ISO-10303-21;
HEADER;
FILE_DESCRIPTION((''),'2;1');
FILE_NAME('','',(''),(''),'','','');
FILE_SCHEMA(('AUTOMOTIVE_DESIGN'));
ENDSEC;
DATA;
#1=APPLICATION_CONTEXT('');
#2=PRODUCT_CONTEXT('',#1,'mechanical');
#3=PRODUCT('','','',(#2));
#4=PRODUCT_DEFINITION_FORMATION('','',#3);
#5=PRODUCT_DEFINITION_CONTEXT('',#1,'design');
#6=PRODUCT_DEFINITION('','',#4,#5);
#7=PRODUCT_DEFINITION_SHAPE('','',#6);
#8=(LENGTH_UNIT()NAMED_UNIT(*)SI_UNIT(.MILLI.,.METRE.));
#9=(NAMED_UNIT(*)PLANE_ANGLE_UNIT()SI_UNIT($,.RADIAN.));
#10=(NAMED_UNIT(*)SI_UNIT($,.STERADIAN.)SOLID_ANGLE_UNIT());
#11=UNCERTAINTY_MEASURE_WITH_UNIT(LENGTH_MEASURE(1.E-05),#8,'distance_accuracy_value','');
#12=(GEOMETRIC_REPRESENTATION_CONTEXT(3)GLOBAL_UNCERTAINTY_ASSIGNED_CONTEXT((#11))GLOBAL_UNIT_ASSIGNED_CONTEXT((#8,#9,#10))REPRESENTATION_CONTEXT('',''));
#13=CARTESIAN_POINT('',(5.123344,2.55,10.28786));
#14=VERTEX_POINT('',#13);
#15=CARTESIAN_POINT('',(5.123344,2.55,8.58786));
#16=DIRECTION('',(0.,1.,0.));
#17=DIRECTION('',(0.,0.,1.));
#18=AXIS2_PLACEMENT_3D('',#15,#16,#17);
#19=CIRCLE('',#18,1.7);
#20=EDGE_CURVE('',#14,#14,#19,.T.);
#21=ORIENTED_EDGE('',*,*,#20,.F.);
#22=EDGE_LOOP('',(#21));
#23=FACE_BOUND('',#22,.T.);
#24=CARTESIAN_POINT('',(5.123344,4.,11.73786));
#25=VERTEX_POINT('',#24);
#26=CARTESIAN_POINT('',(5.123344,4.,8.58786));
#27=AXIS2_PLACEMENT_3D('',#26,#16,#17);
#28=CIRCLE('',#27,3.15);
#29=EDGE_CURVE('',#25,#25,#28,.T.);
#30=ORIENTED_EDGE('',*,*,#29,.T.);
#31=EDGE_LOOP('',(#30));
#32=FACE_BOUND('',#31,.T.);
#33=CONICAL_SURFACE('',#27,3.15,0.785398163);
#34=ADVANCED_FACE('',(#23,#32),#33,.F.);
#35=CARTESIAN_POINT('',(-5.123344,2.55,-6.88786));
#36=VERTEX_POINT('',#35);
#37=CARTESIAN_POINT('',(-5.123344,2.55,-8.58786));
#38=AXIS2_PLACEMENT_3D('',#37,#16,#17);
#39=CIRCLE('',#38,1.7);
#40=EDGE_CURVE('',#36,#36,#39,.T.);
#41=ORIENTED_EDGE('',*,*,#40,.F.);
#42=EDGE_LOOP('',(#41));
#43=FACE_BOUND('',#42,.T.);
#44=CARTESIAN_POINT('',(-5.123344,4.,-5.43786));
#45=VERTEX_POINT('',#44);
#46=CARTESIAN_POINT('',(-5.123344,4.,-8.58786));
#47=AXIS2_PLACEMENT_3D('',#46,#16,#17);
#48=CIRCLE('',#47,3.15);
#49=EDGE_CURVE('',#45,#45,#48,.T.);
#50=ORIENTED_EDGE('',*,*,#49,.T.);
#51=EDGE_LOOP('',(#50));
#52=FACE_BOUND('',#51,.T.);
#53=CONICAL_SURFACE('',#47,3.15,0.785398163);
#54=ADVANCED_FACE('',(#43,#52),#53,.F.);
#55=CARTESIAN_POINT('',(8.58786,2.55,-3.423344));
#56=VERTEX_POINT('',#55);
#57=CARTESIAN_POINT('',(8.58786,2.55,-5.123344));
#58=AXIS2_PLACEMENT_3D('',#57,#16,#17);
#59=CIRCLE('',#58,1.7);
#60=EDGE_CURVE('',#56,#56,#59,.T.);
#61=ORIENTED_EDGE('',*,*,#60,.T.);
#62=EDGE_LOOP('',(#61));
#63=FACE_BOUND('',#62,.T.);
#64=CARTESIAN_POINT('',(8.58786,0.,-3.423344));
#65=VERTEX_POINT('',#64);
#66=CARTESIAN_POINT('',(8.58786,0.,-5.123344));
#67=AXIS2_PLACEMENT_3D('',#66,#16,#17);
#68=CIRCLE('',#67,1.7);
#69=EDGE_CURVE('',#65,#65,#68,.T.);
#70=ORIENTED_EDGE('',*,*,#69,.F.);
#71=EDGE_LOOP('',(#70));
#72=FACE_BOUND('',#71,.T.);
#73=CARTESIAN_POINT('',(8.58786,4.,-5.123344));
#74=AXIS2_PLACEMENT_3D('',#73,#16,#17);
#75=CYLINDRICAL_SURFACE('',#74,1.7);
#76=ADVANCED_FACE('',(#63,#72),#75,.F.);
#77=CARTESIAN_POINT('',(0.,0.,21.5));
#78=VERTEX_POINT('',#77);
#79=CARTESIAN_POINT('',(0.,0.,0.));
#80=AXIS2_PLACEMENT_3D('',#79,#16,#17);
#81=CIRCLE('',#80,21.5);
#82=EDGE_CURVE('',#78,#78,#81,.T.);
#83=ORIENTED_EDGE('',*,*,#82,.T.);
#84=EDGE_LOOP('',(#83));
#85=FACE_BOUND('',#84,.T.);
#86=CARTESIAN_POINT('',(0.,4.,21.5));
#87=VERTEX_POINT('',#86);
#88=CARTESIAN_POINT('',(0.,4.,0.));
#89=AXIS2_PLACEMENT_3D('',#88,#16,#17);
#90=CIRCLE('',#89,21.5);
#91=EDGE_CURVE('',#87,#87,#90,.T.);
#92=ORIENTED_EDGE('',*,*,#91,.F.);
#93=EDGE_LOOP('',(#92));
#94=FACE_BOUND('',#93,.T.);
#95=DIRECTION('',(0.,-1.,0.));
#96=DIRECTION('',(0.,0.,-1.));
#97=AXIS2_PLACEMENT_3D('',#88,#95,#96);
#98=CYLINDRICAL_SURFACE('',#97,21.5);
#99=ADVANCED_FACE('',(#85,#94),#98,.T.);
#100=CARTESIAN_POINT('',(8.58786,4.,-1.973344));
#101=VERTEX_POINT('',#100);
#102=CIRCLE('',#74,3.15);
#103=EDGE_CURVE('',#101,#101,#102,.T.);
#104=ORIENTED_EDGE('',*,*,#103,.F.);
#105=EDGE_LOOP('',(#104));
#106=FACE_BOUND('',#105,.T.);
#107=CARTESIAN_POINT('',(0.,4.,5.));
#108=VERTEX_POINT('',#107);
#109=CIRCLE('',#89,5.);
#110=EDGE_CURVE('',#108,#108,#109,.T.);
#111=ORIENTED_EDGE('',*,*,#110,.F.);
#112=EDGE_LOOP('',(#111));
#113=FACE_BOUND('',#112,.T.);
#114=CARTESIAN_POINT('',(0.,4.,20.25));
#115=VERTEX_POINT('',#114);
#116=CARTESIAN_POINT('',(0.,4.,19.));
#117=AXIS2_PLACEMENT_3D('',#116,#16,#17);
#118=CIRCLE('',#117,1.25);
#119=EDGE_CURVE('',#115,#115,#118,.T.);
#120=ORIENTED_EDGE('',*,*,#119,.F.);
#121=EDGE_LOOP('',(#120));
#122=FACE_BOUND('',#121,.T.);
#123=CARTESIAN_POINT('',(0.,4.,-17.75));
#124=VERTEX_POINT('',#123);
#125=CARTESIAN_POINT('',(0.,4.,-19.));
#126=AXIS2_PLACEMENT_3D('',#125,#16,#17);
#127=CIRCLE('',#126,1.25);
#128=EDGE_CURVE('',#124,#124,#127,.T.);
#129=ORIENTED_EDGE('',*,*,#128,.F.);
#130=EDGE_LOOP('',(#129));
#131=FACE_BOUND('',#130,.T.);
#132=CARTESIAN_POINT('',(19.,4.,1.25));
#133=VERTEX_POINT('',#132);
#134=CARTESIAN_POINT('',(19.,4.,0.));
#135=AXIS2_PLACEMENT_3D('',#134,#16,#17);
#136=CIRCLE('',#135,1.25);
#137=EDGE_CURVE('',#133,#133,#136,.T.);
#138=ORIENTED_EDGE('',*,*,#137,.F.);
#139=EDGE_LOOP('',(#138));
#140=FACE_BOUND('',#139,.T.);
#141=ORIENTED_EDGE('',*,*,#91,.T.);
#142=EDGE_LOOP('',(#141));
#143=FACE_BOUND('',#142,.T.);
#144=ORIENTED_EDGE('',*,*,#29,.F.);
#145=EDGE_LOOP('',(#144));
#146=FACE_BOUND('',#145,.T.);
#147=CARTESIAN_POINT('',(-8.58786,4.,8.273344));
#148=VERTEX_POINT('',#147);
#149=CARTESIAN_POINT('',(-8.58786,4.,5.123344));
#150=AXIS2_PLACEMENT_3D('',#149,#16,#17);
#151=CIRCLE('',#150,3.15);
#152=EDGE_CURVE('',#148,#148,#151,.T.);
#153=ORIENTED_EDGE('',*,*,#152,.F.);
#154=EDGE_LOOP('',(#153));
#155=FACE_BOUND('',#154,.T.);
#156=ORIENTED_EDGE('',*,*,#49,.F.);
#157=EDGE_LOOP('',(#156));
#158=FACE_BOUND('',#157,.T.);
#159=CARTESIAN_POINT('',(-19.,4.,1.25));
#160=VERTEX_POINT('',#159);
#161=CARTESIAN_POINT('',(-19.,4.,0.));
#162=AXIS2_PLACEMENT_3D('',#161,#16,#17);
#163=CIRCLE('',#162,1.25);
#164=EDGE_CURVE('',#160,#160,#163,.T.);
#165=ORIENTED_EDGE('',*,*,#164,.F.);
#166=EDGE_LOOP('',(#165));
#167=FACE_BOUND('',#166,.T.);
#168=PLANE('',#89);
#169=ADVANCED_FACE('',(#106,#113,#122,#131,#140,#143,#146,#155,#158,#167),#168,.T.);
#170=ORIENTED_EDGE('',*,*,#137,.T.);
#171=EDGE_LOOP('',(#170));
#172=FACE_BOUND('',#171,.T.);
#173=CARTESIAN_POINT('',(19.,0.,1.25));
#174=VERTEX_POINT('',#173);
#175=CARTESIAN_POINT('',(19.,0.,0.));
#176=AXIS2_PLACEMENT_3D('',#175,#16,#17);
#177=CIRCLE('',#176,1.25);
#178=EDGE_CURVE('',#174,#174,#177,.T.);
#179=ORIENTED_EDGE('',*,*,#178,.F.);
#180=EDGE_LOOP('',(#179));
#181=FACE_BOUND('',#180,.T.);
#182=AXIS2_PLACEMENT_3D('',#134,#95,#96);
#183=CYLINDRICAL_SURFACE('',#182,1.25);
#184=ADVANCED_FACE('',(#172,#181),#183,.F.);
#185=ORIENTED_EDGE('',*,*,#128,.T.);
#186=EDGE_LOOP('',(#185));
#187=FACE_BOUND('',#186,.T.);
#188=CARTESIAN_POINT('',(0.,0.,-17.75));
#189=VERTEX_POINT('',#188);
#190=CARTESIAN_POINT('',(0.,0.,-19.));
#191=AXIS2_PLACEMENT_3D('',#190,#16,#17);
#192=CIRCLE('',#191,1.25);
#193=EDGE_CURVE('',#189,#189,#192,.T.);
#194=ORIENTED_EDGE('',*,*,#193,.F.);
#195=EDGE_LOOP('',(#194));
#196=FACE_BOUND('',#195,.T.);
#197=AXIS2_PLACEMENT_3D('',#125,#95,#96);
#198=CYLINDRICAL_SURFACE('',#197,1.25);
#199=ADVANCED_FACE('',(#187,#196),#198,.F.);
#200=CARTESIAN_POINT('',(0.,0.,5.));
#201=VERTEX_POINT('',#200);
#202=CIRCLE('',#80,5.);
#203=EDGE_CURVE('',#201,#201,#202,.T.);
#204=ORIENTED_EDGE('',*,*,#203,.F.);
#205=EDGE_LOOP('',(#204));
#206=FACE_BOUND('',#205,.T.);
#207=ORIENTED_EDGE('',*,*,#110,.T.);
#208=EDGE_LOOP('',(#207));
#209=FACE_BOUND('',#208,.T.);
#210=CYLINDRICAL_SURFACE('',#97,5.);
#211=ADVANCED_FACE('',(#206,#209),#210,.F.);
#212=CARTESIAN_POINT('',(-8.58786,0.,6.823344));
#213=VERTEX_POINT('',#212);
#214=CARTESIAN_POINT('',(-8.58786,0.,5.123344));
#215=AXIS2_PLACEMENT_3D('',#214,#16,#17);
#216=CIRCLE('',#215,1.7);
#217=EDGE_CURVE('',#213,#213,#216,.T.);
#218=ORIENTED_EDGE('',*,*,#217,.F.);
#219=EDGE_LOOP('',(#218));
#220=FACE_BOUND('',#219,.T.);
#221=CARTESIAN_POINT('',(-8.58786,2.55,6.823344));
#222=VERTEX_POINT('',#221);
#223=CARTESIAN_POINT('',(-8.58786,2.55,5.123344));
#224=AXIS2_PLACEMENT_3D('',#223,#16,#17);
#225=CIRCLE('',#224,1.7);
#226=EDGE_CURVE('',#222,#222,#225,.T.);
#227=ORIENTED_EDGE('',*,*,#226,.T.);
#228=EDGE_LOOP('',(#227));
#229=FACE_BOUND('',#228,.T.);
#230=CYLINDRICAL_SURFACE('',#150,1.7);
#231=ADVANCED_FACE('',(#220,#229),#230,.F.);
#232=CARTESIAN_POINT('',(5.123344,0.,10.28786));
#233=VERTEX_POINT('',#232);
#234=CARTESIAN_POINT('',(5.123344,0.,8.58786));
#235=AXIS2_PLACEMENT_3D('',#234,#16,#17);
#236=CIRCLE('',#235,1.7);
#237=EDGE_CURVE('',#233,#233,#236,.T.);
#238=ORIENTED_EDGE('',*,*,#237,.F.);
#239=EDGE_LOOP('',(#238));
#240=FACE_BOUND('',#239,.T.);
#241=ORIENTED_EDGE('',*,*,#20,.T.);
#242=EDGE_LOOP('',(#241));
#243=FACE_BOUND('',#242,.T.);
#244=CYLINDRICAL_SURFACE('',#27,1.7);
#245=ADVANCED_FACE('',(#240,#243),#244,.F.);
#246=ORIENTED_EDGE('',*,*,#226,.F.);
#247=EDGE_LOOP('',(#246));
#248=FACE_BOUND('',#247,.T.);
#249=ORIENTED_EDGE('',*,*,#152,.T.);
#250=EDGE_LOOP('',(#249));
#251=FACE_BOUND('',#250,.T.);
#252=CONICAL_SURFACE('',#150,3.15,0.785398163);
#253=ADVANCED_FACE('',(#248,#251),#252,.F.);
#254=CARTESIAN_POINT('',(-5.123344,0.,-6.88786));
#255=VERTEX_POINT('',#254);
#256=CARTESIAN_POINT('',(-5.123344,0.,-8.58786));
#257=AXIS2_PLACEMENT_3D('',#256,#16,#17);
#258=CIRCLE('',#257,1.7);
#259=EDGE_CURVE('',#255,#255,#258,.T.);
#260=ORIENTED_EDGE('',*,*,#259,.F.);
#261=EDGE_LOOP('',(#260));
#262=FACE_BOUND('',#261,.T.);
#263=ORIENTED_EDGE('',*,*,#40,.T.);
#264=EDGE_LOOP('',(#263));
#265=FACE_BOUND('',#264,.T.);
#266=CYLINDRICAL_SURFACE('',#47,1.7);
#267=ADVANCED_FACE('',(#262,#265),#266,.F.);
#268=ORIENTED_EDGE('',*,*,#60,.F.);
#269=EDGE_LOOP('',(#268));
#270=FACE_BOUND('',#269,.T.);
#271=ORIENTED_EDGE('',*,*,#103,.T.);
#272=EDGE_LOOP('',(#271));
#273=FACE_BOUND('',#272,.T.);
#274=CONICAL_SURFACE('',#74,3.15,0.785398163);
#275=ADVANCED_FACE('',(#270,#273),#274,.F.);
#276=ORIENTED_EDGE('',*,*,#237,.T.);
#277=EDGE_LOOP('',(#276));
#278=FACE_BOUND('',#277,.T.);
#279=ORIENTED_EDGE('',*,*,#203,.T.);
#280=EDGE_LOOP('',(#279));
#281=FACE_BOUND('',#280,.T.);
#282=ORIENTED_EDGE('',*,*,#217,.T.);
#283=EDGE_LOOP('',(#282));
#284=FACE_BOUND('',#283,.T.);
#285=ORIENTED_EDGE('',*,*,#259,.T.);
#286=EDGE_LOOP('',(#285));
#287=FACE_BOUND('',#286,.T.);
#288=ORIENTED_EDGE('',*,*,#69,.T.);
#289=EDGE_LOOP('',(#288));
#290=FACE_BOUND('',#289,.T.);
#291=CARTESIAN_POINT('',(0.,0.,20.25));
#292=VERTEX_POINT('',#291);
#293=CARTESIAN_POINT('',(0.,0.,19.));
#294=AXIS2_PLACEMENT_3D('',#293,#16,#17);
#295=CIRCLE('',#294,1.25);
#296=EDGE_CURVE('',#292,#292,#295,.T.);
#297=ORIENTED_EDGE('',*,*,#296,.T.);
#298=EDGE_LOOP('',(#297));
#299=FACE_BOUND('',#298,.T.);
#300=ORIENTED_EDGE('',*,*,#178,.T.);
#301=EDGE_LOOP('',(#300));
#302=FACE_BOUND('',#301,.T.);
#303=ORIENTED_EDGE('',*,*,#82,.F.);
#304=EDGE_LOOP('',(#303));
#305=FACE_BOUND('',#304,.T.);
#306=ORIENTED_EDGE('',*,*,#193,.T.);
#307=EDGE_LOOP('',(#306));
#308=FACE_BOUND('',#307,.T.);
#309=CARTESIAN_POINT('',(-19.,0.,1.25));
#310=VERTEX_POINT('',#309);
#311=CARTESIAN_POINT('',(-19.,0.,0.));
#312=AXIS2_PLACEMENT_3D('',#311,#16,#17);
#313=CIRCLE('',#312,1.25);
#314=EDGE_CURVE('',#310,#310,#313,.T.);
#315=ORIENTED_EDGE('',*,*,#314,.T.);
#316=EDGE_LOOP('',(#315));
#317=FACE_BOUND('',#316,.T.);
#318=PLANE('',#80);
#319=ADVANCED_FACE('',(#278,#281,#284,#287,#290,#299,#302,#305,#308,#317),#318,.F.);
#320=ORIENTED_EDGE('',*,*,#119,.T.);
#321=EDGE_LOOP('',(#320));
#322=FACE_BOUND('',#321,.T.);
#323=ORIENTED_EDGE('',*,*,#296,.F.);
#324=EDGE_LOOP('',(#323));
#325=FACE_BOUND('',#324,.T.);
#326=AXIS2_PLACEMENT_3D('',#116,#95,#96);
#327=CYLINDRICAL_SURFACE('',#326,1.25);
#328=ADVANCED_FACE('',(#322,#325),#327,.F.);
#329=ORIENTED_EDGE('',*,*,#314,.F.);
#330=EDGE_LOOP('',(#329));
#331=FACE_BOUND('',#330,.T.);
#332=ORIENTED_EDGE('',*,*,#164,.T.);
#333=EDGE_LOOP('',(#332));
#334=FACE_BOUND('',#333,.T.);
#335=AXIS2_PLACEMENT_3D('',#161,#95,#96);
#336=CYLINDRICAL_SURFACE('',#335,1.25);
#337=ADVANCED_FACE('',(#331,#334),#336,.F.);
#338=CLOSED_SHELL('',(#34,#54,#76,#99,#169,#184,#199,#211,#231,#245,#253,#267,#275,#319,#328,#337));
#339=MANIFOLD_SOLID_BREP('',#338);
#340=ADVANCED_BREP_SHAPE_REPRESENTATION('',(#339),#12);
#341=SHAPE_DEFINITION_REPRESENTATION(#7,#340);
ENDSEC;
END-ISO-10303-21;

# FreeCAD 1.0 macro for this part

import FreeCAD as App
import Part
import Sketcher

doc = App.newDocument("Part")
body = doc.addObject("PartDesign::Body", "Body")

sketch1 = body.newObject("Sketcher::SketchObject", "Sketch")
sketch1.AttachmentSupport = (doc.getObject("XZ_Plane"), [""])
sketch1.MapMode = "FlatFace"
sketch1.addGeometry([
    Part.Circle(App.Vector(0, 0, 0), App.Vector(0, 0, 1), 21.5),
    Part.Circle(App.Vector(0, -19, 0), App.Vector(0, 0, 1), 1.2),
    Part.Circle(App.Vector(-5.1, -8.6, 0), App.Vector(0, 0, 1), 1),
    Part.Circle(App.Vector(-19, 0, 0), App.Vector(0, 0, 1), 1.2),
    Part.Circle(App.Vector(-8.6, 5.1, 0), App.Vector(0, 0, 1), 1),
    Part.Circle(App.Vector(8.6, -5.1, 0), App.Vector(0, 0, 1), 1),
    Part.Circle(App.Vector(19, 0, 0), App.Vector(0, 0, 1), 1.2),
    Part.Circle(App.Vector(0, 0, 0), App.Vector(0, 0, 1), 5),
    Part.Circle(App.Vector(5.1, 8.6, 0), App.Vector(0, 0, 1), 1),
    Part.Circle(App.Vector(0, 19, 0), App.Vector(0, 0, 1), 1.2),
], False)
sketch1.addConstraint([
    Sketcher.Constraint("Coincident", 0, 3, -1, 1),
    Sketcher.Constraint("Coincident", 7, 3, -1, 1),
    Sketcher.Constraint("Equal", 1, 3),
    Sketcher.Constraint("Equal", 2, 4),
    Sketcher.Constraint("Equal", 4, 5),
    Sketcher.Constraint("Equal", 3, 6),
    Sketcher.Constraint("Equal", 5, 8),
    Sketcher.Constraint("Equal", 6, 9),
    Sketcher.Constraint("Symmetric", 4, 3, 5, 3, -1, 1),
    Sketcher.Constraint("Symmetric", 3, 3, 6, 3, -1, 1),
    Sketcher.Constraint("Symmetric", 2, 3, 8, 3, -1, 1),
    Sketcher.Constraint("Symmetric", 1, 3, 9, 3, -1, 1),
    Sketcher.Constraint("PointOnObject", 1, 3, -2),
    Sketcher.Constraint("PointOnObject", 3, 3, -1),
    Sketcher.Constraint("Diameter", 0, 43.0),
    Sketcher.Constraint("Diameter", 2, 2.0),
    Sketcher.Constraint("Diameter", 7, 10.0),
    Sketcher.Constraint("Diameter", 1, 2.5),
    Sketcher.Constraint("DistanceY", 1, 3, -1, 1, 19.0),
    Sketcher.Constraint("DistanceX", 3, 3, -1, 1, 19.0),
    Sketcher.Constraint("DistanceY", 2, 3, -1, 1, 8.58786),
    Sketcher.Constraint("DistanceX", 4, 3, -1, 1, 8.58786),
    Sketcher.Constraint("DistanceY", 5, 3, 4, 3, 10.246689),
    Sketcher.Constraint("DistanceX", 2, 3, -1, 1, 5.123344),
])
pad1 = body.newObject("PartDesign::Pad", "Pad")
pad1.Profile = sketch1
pad1.Length = 4
pad1.Reversed = True

sketch2 = body.newObject("Sketcher::SketchObject", "Sketch001")
sketch2.AttachmentSupport = (doc.getObject("XZ_Plane"), [""])
sketch2.MapMode = "FlatFace"
sketch2.AttachmentOffset = App.Placement(App.Vector(0, 0, -4), App.Rotation())
sketch2.addGeometry([
    Part.Circle(App.Vector(-5.1, -8.6, 0), App.Vector(0, 0, 1), 1.7),
    Part.Circle(App.Vector(8.6, -5.1, 0), App.Vector(0, 0, 1), 1.7),
    Part.Circle(App.Vector(5.1, 8.6, 0), App.Vector(0, 0, 1), 1.7),
    Part.Circle(App.Vector(-8.6, 5.1, 0), App.Vector(0, 0, 1), 1.7),
], False)
sketch2.addConstraint([
    Sketcher.Constraint("Equal", 0, 1),
    Sketcher.Constraint("Equal", 1, 2),
    Sketcher.Constraint("Equal", 2, 3),
    Sketcher.Constraint("Symmetric", 0, 3, 2, 3, -1, 1),
    Sketcher.Constraint("Symmetric", 1, 3, 3, 3, -1, 1),
    Sketcher.Constraint("Diameter", 0, 3.4),
    Sketcher.Constraint("DistanceY", 0, 3, -1, 1, 8.58786),
    Sketcher.Constraint("DistanceX", -1, 1, 1, 3, 8.58786),
    Sketcher.Constraint("DistanceX", 0, 3, 2, 3, 10.246689),
    Sketcher.Constraint("DistanceY", 1, 3, 3, 3, 10.246689),
])
doc.recompute()
hole = body.newObject("PartDesign::Hole", "Hole")
hole.Profile = sketch2
hole.ThreadType = "None"
hole.Diameter = 3.4
hole.DepthType = "ThroughAll"
hole.HoleCutType = "Countersink"
hole.HoleCutDiameter = 6.3
hole.HoleCutCountersinkAngle = 90
hole.Reversed = True

doc.recompute()
